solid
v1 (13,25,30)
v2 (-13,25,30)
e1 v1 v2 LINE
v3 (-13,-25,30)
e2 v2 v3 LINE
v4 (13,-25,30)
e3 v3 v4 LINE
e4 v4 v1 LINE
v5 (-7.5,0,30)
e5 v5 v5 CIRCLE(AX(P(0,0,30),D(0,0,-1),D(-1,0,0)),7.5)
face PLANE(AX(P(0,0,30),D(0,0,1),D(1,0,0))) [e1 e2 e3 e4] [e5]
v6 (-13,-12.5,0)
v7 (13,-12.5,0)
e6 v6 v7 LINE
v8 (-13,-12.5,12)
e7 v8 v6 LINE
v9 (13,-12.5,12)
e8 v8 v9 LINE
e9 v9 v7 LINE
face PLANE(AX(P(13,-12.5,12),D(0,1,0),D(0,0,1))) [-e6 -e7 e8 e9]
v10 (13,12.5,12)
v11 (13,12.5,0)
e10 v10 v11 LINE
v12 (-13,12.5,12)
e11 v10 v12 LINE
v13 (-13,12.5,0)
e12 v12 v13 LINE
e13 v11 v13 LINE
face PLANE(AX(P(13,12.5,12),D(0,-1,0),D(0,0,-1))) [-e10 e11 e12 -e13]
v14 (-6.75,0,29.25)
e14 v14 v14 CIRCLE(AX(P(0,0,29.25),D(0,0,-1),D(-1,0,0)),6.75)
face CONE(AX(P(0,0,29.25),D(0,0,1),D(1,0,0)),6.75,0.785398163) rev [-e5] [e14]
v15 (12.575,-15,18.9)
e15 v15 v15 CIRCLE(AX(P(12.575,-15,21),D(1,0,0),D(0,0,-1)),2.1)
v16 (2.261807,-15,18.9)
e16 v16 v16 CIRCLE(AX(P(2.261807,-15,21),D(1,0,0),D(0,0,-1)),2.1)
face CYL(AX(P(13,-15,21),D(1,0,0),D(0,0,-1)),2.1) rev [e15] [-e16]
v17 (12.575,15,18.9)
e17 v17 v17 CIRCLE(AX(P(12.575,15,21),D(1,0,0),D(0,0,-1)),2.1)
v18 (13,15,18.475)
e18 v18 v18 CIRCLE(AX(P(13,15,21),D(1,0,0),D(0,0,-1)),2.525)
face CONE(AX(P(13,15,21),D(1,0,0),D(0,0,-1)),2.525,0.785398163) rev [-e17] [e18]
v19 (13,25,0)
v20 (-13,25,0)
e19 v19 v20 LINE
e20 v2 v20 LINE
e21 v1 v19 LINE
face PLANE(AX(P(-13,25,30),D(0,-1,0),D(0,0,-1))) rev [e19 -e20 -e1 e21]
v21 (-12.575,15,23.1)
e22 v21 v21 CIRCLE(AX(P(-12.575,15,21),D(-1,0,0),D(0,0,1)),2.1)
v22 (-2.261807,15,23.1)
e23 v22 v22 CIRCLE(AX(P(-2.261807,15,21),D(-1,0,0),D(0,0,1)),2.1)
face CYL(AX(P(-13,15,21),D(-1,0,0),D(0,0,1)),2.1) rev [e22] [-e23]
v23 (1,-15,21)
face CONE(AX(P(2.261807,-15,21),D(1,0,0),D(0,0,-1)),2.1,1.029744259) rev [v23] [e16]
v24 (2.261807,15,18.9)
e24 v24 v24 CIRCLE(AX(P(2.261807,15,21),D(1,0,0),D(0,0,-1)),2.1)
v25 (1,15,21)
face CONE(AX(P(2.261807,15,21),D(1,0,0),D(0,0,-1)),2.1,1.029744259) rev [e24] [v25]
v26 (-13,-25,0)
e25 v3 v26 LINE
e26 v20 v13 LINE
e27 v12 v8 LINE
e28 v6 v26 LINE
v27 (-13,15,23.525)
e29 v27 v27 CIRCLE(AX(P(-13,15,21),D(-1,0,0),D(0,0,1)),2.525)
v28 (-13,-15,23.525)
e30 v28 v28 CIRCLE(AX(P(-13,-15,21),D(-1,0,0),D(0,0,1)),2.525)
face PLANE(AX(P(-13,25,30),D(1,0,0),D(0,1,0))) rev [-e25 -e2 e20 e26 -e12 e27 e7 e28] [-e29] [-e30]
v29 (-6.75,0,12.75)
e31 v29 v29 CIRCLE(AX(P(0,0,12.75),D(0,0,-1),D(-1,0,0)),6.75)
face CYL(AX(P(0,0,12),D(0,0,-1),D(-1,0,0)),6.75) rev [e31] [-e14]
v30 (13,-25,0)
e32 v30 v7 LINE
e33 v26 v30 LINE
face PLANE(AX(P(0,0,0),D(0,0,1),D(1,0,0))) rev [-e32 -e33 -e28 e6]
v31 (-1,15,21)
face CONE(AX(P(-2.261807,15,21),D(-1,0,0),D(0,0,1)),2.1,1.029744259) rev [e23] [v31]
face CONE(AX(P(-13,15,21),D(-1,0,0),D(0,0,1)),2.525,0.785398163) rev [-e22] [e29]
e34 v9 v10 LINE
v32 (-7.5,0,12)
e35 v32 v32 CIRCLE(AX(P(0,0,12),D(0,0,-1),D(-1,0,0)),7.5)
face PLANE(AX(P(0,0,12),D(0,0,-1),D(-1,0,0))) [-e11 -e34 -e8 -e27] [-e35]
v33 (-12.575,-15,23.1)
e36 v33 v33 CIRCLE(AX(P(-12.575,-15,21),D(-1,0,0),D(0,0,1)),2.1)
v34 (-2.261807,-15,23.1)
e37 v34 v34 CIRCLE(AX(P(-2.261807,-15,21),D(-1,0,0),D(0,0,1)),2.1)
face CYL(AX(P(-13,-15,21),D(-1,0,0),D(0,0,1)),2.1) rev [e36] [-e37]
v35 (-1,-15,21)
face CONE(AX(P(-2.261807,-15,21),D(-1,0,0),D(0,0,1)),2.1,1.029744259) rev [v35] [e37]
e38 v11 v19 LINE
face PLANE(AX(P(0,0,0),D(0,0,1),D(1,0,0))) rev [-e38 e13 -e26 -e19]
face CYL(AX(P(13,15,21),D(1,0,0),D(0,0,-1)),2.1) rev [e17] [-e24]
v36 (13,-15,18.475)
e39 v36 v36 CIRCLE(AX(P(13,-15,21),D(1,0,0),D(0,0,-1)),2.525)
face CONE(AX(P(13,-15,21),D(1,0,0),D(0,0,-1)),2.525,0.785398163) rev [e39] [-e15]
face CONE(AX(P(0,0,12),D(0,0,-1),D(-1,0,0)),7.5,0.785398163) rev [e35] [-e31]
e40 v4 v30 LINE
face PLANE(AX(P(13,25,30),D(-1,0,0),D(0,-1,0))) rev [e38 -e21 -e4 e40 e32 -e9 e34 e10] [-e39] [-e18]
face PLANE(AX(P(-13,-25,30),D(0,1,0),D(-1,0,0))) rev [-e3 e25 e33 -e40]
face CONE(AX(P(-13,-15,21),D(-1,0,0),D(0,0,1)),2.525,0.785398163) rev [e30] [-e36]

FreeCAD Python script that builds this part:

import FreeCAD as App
import Part
import Sketcher
from FreeCAD import Vector
Q = App.Units.Quantity

doc = App.newDocument("Part")
params = doc.addObject("Spreadsheet::Sheet", "Params")
for row, (alias, value) in enumerate([
    ("sketch1_width", "26 mm"),
    ("sketch1_height", "50 mm"),
    ("pad1_length", "30 mm"),
    ("sketch2_width", "26 mm"),
    ("sketch2_height", "25 mm"),
    ("pocket1_length", "12 mm"),
    ("sketch3_height", "18 mm"),
    ("sketch3_width", "7.5 mm"),
    ("sketch3_height2", "16.5 mm"),
    ("groove_angle", "360 deg"),
    ("sketch4_width", "12 mm"),
    ("groove2_angle", "360 deg"),
    ("linearpattern_pitch", "30 mm"),
    ("sketch5_width", "12 mm"),
    ("groove3_angle", "360 deg"),
], start=1):
    params.set(f"A{row}", alias)
    params.set(f"B{row}", "=" + value)
    params.setAlias(f"B{row}", alias)

body = doc.addObject("PartDesign::Body", "Body")

sketch1 = doc.addObject("Sketcher::SketchObject", "Sketch")
body.addObject(sketch1)
sketch1.AttachmentSupport = (doc.XY_Plane, [""])
sketch1.MapMode = "FlatFace"
sketch1.addGeometry(Part.LineSegment(Vector(-13, 25, 0), Vector(-13, -25, 0)), False)
sketch1.addGeometry(Part.LineSegment(Vector(-13, -25, 0), Vector(13, -25, 0)), False)
sketch1.addGeometry(Part.LineSegment(Vector(13, -25, 0), Vector(13, 25, 0)), False)
sketch1.addGeometry(Part.LineSegment(Vector(13, 25, 0), Vector(-13, 25, 0)), False)
sketch1.addConstraint(Sketcher.Constraint("Coincident", 0, 2, 1, 1))
sketch1.addConstraint(Sketcher.Constraint("Coincident", 1, 2, 2, 1))
sketch1.addConstraint(Sketcher.Constraint("Coincident", 2, 2, 3, 1))
sketch1.addConstraint(Sketcher.Constraint("Coincident", 3, 2, 0, 1))
sketch1.addConstraint(Sketcher.Constraint("Vertical", 0))
sketch1.addConstraint(Sketcher.Constraint("Horizontal", 1))
sketch1.addConstraint(Sketcher.Constraint("Vertical", 2))
sketch1.addConstraint(Sketcher.Constraint("Horizontal", 3))
sketch1.addConstraint(Sketcher.Constraint("Symmetric", 0, 2, 2, 2, -1, 1))
sketch1.addConstraint(Sketcher.Constraint("DistanceX", 1, 1, 1, 2, Q("26 mm")))
sketch1.addConstraint(Sketcher.Constraint("DistanceY", 0, 2, 0, 1, Q("50 mm")))
sketch1.setExpression("Constraints[9]", "Params.sketch1_width")
sketch1.setExpression("Constraints[10]", "Params.sketch1_height")
pad1 = doc.addObject("PartDesign::Pad", "Pad")
body.addObject(pad1)
pad1.Profile = sketch1
pad1.setExpression("Length", "Params.pad1_length")

sketch2 = doc.addObject("Sketcher::SketchObject", "Sketch001")
body.addObject(sketch2)
sketch2.AttachmentSupport = (doc.XY_Plane, [""])
sketch2.MapMode = "FlatFace"
sketch2.addGeometry(Part.LineSegment(Vector(-13, 12, 0), Vector(-13, -12, 0)), False)
sketch2.addGeometry(Part.LineSegment(Vector(-13, -12, 0), Vector(13, -12, 0)), False)
sketch2.addGeometry(Part.LineSegment(Vector(13, -12, 0), Vector(13, 12, 0)), False)
sketch2.addGeometry(Part.LineSegment(Vector(13, 12, 0), Vector(-13, 12, 0)), False)
sketch2.addConstraint(Sketcher.Constraint("Coincident", 0, 2, 1, 1))
sketch2.addConstraint(Sketcher.Constraint("Coincident", 1, 2, 2, 1))
sketch2.addConstraint(Sketcher.Constraint("Coincident", 2, 2, 3, 1))
sketch2.addConstraint(Sketcher.Constraint("Coincident", 3, 2, 0, 1))
sketch2.addConstraint(Sketcher.Constraint("Vertical", 0))
sketch2.addConstraint(Sketcher.Constraint("Horizontal", 1))
sketch2.addConstraint(Sketcher.Constraint("Vertical", 2))
sketch2.addConstraint(Sketcher.Constraint("Horizontal", 3))
sketch2.addConstraint(Sketcher.Constraint("Symmetric", 0, 2, 2, 2, -1, 1))
sketch2.addConstraint(Sketcher.Constraint("DistanceX", 1, 1, 1, 2, Q("26 mm")))
sketch2.addConstraint(Sketcher.Constraint("DistanceY", 0, 2, 0, 1, Q("25 mm")))
sketch2.setExpression("Constraints[9]", "Params.sketch2_width")
sketch2.setExpression("Constraints[10]", "Params.sketch2_height")
pocket1 = doc.addObject("PartDesign::Pocket", "Pocket")
body.addObject(pocket1)
pocket1.Profile = sketch2
pocket1.setExpression("Length", "Params.pocket1_length")
pocket1.Reversed = True

sketch3 = doc.addObject("Sketcher::SketchObject", "Sketch002")
body.addObject(sketch3)
sketch3.AttachmentSupport = (doc.YZ_Plane, [""])
sketch3.MapMode = "FlatFace"
sketch3.addGeometry(Part.LineSegment(Vector(0, 30, 0), Vector(0, 12, 0)), False)
sketch3.addGeometry(Part.LineSegment(Vector(0, 12, 0), Vector(7.5, 12, 0)), False)
sketch3.addGeometry(Part.LineSegment(Vector(7.5, 12, 0), Vector(6.8, 12.8, 0)), False)
sketch3.addGeometry(Part.LineSegment(Vector(6.8, 12.8, 0), Vector(6.8, 29.2, 0)), False)
sketch3.addGeometry(Part.LineSegment(Vector(6.8, 29.2, 0), Vector(7.5, 30, 0)), False)
sketch3.addGeometry(Part.LineSegment(Vector(7.5, 30, 0), Vector(0, 30, 0)), False)
sketch3.addConstraint(Sketcher.Constraint("Coincident", 0, 2, 1, 1))
sketch3.addConstraint(Sketcher.Constraint("Coincident", 1, 2, 2, 1))
sketch3.addConstraint(Sketcher.Constraint("Coincident", 2, 2, 3, 1))
sketch3.addConstraint(Sketcher.Constraint("Coincident", 3, 2, 4, 1))
sketch3.addConstraint(Sketcher.Constraint("Coincident", 4, 2, 5, 1))
sketch3.addConstraint(Sketcher.Constraint("Coincident", 5, 2, 0, 1))
sketch3.addConstraint(Sketcher.Constraint("Vertical", 0))
sketch3.addConstraint(Sketcher.Constraint("Horizontal", 1))
sketch3.addConstraint(Sketcher.Constraint("Vertical", 3))
sketch3.addConstraint(Sketcher.Constraint("Horizontal", 5))
sketch3.addConstraint(Sketcher.Constraint("PointOnObject", 0, 2, -2))
sketch3.addConstraint(Sketcher.Constraint("Perpendicular", 2, 4))
sketch3.addConstraint(Sketcher.Constraint("Vertical", 1, 2, 4, 2))
sketch3.addConstraint(Sketcher.Constraint("Equal", 2, 4))
sketch3.addConstraint(Sketcher.Constraint("DistanceY", 0, 2, 0, 1, Q("18 mm")))
sketch3.addConstraint(Sketcher.Constraint("DistanceX", 1, 1, 1, 2, Q("7.5 mm")))
sketch3.addConstraint(Sketcher.Constraint("DistanceY", 3, 1, 3, 2, Q("16.5 mm")))
sketch3.addConstraint(Sketcher.Constraint("DistanceY", -1, 1, 0, 2, Q("12 mm")))
sketch3.setExpression("Constraints[14]", "Params.sketch3_height")
sketch3.setExpression("Constraints[15]", "Params.sketch3_width")
sketch3.setExpression("Constraints[16]", "Params.sketch3_height2")
groove = doc.addObject("PartDesign::Groove", "Groove")
body.addObject(groove)
groove.Profile = sketch3
groove.ReferenceAxis = (sketch3, ["V_Axis"])
groove.setExpression("Angle", "Params.groove_angle")

sketch4 = doc.addObject("Sketcher::SketchObject", "Sketch003")
body.addObject(sketch4)
sketch4.AttachmentSupport = (doc.XZ_Plane, [""])
sketch4.MapMode = "FlatFace"
sketch4.AttachmentOffset = App.Placement(Vector(0, 0, -15), App.Rotation())
sketch4.addGeometry(Part.LineSegment(Vector(1, 21, 0), Vector(13, 21, 0)), False)
sketch4.addGeometry(Part.LineSegment(Vector(13, 21, 0), Vector(13, 18.5, 0)), False)
sketch4.addGeometry(Part.LineSegment(Vector(13, 18.5, 0), Vector(12.6, 18.9, 0)), False)
sketch4.addGeometry(Part.LineSegment(Vector(12.6, 18.9, 0), Vector(2.3, 18.9, 0)), False)
sketch4.addGeometry(Part.LineSegment(Vector(2.3, 18.9, 0), Vector(1, 21, 0)), False)
sketch4.addGeometry(Part.LineSegment(Vector(13, 21, 0), Vector(1, 21, 0)), True)
sketch4.addConstraint(Sketcher.Constraint("Coincident", 0, 2, 1, 1))
sketch4.addConstraint(Sketcher.Constraint("Coincident", 1, 2, 2, 1))
sketch4.addConstraint(Sketcher.Constraint("Coincident", 2, 2, 3, 1))
sketch4.addConstraint(Sketcher.Constraint("Coincident", 3, 2, 4, 1))
sketch4.addConstraint(Sketcher.Constraint("Coincident", 4, 2, 0, 1))
sketch4.addConstraint(Sketcher.Constraint("Horizontal", 0))
sketch4.addConstraint(Sketcher.Constraint("Vertical", 1))
sketch4.addConstraint(Sketcher.Constraint("Horizontal", 3))
sketch4.addConstraint(Sketcher.Constraint("Horizontal", 5))
sketch4.addConstraint(Sketcher.Constraint("Coincident", 5, 1, 0, 2))
sketch4.addConstraint(Sketcher.Constraint("Equal", 0, 5))
sketch4.addConstraint(Sketcher.Constraint("DistanceX", 0, 1, 0, 2, Q("12 mm")))
sketch4.addConstraint(Sketcher.Constraint("Angle", 2, Q("135 deg")))
sketch4.addConstraint(Sketcher.Constraint("Angle", 4, Q("121 deg")))
sketch4.addConstraint(Sketcher.Constraint("DistanceX", -1, 1, 0, 2, Q("13 mm")))
sketch4.addConstraint(Sketcher.Constraint("DistanceY", -1, 1, 0, 2, Q("21 mm")))
sketch4.addConstraint(Sketcher.Constraint("DistanceY", -1, 1, 2, 2, Q("18.9 mm")))
sketch4.addConstraint(Sketcher.Constraint("DistanceY", 1, 2, 1, 1, Q("2.525 mm")))
sketch4.setExpression("Constraints[11]", "Params.sketch4_width")
groove2 = doc.addObject("PartDesign::Groove", "Groove001")
body.addObject(groove2)
groove2.Profile = sketch4
groove2.ReferenceAxis = (sketch4, ["Axis0"])
groove2.setExpression("Angle", "Params.groove2_angle")
doc.recompute()

linearpattern = doc.addObject("PartDesign::LinearPattern", "LinearPattern")
body.addObject(linearpattern)
linearpattern.Originals = [groove2]
linearpattern.Direction = (doc.Y_Axis, [""])
linearpattern.Mode = "offset"
linearpattern.setExpression("Offset", "Params.linearpattern_pitch")
linearpattern.Occurrences = 2
linearpattern.Reversed = True
body.Tip = linearpattern
doc.recompute()

mirrored = doc.addObject("PartDesign::Mirrored", "Mirrored")
body.addObject(mirrored)
mirrored.Originals = [groove2]
mirrored.MirrorPlane = (doc.YZ_Plane, [""])
body.Tip = mirrored

sketch5 = doc.addObject("Sketcher::SketchObject", "Sketch004")
body.addObject(sketch5)
sketch5.AttachmentSupport = (doc.XZ_Plane, [""])
sketch5.MapMode = "FlatFace"
sketch5.AttachmentOffset = App.Placement(Vector(0, 0, 15), App.Rotation())
sketch5.addGeometry(Part.LineSegment(Vector(-13, 21, 0), Vector(-1, 21, 0)), False)
sketch5.addGeometry(Part.LineSegment(Vector(-1, 21, 0), Vector(-2.3, 18.9, 0)), False)
sketch5.addGeometry(Part.LineSegment(Vector(-2.3, 18.9, 0), Vector(-12.6, 18.9, 0)), False)
sketch5.addGeometry(Part.LineSegment(Vector(-12.6, 18.9, 0), Vector(-13, 18.5, 0)), False)
sketch5.addGeometry(Part.LineSegment(Vector(-13, 18.5, 0), Vector(-13, 21, 0)), False)
sketch5.addGeometry(Part.LineSegment(Vector(-1, 21, 0), Vector(-13, 21, 0)), True)
sketch5.addConstraint(Sketcher.Constraint("Coincident", 0, 2, 1, 1))
sketch5.addConstraint(Sketcher.Constraint("Coincident", 1, 2, 2, 1))
sketch5.addConstraint(Sketcher.Constraint("Coincident", 2, 2, 3, 1))
sketch5.addConstraint(Sketcher.Constraint("Coincident", 3, 2, 4, 1))
sketch5.addConstraint(Sketcher.Constraint("Coincident", 4, 2, 0, 1))
sketch5.addConstraint(Sketcher.Constraint("Horizontal", 0))
sketch5.addConstraint(Sketcher.Constraint("Horizontal", 2))
sketch5.addConstraint(Sketcher.Constraint("Vertical", 4))
sketch5.addConstraint(Sketcher.Constraint("Horizontal", 5))
sketch5.addConstraint(Sketcher.Constraint("Coincident", 5, 1, 0, 2))
sketch5.addConstraint(Sketcher.Constraint("Vertical", 3, 2, 5, 2))
sketch5.addConstraint(Sketcher.Constraint("DistanceX", 0, 1, 0, 2, Q("12 mm")))
sketch5.addConstraint(Sketcher.Constraint("Angle", 1, Q("-121 deg")))
sketch5.addConstraint(Sketcher.Constraint("Angle", 3, Q("-135 deg")))
sketch5.addConstraint(Sketcher.Constraint("DistanceX", 0, 2, -1, 1, Q("1 mm")))
sketch5.addConstraint(Sketcher.Constraint("DistanceY", -1, 1, 0, 2, Q("21 mm")))
sketch5.addConstraint(Sketcher.Constraint("DistanceY", -1, 1, 1, 2, Q("18.9 mm")))
sketch5.addConstraint(Sketcher.Constraint("DistanceY", 4, 1, 4, 2, Q("2.525 mm")))
sketch5.setExpression("Constraints[11]", "Params.sketch5_width")
groove3 = doc.addObject("PartDesign::Groove", "Groove002")
body.addObject(groove3)
groove3.Profile = sketch5
groove3.ReferenceAxis = (sketch5, ["Axis0"])
groove3.setExpression("Angle", "Params.groove3_angle")

doc.recompute()
